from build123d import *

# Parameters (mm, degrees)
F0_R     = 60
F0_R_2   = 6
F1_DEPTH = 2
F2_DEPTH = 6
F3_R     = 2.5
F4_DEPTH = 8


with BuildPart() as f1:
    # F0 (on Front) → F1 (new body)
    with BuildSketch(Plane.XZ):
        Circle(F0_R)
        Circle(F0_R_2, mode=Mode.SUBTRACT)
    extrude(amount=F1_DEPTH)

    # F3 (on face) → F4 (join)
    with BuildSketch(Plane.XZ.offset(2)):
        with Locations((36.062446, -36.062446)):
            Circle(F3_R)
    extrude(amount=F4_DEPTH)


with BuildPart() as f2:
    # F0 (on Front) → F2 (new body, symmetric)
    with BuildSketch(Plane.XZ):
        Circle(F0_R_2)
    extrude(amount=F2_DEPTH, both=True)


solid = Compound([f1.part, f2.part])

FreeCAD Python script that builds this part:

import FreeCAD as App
import Part
import Sketcher
from FreeCAD import Vector

doc = App.newDocument("Part")
params = doc.addObject("Spreadsheet::Sheet", "Params")
for row, (alias, value) in enumerate([
    ("sketch1_diameter", "120 mm"),
    ("sketch1_diameter2", "12 mm"),
    ("pad1_length", "2 mm"),
    ("sketch2_diameter", "5 mm"),
    ("pad2_length", "8 mm"),
    ("sketch3_diameter", "12 mm"),
    ("pad3_length", "12 mm"),
], start=1):
    params.set(f"A{row}", alias)
    params.set(f"B{row}", "=" + value)
    params.setAlias(f"B{row}", alias)

body = doc.addObject("PartDesign::Body", "Body")

sketch1 = doc.addObject("Sketcher::SketchObject", "Sketch")
body.addObject(sketch1)
sketch1.AttachmentSupport = (doc.XZ_Plane, [""])
sketch1.MapMode = "FlatFace"
sketch1.addGeometry([
    Part.Circle(Vector(0, 0, 0), Vector(0, 0, 1), 60),
    Part.Circle(Vector(0, 0, 0), Vector(0, 0, 1), 6),
], False)
sketch1.addConstraint([
    Sketcher.Constraint("Coincident", 0, 3, -1, 1),
    Sketcher.Constraint("Coincident", 1, 3, -1, 1),
    Sketcher.Constraint("Diameter", 0, 120.0),
    Sketcher.Constraint("Diameter", 1, 12.0),
])
sketch1.setExpression("Constraints[2]", "Params.sketch1_diameter")
sketch1.setExpression("Constraints[3]", "Params.sketch1_diameter2")
pad1 = doc.addObject("PartDesign::Pad", "Pad")
body.addObject(pad1)
pad1.Profile = sketch1
pad1.setExpression("Length", "Params.pad1_length")

sketch2 = doc.addObject("Sketcher::SketchObject", "Sketch001")
body.addObject(sketch2)
sketch2.AttachmentSupport = (doc.XZ_Plane, [""])
sketch2.MapMode = "FlatFace"
sketch2.AttachmentOffset = App.Placement(Vector(0, 0, 2), App.Rotation())
sketch2.addGeometry(Part.Circle(Vector(36.062446, -36.062446, 0), Vector(0, 0, 1), 2.5), False)
sketch2.addConstraint([
    Sketcher.Constraint("Diameter", 0, 5.0),
    Sketcher.Constraint("DistanceX", -1, 1, 0, 3, 36.062446),
    Sketcher.Constraint("DistanceY", 0, 3, -1, 1, 36.062446),
])
sketch2.setExpression("Constraints[0]", "Params.sketch2_diameter")
pad2 = doc.addObject("PartDesign::Pad", "Pad001")
body.addObject(pad2)
pad2.Profile = sketch2
pad2.setExpression("Length", "Params.pad2_length")
body2 = doc.addObject("PartDesign::Body", "Body001")

sketch3 = doc.addObject("Sketcher::SketchObject", "Sketch002")
body2.addObject(sketch3)
sketch3.AttachmentSupport = (doc.getObject("XZ_Plane001"), [""])
sketch3.MapMode = "FlatFace"
sketch3.addGeometry(Part.Circle(Vector(0, 0, 0), Vector(0, 0, 1), 6), False)
sketch3.addConstraint([
    Sketcher.Constraint("Coincident", 0, 3, -1, 1),
    Sketcher.Constraint("Diameter", 0, 12.0),
])
sketch3.setExpression("Constraints[1]", "Params.sketch3_diameter")
pad3 = doc.addObject("PartDesign::Pad", "Pad002")
body2.addObject(pad3)
pad3.Profile = sketch3
pad3.setExpression("Length", "Params.pad3_length")
pad3.Midplane = True

doc.recompute()
